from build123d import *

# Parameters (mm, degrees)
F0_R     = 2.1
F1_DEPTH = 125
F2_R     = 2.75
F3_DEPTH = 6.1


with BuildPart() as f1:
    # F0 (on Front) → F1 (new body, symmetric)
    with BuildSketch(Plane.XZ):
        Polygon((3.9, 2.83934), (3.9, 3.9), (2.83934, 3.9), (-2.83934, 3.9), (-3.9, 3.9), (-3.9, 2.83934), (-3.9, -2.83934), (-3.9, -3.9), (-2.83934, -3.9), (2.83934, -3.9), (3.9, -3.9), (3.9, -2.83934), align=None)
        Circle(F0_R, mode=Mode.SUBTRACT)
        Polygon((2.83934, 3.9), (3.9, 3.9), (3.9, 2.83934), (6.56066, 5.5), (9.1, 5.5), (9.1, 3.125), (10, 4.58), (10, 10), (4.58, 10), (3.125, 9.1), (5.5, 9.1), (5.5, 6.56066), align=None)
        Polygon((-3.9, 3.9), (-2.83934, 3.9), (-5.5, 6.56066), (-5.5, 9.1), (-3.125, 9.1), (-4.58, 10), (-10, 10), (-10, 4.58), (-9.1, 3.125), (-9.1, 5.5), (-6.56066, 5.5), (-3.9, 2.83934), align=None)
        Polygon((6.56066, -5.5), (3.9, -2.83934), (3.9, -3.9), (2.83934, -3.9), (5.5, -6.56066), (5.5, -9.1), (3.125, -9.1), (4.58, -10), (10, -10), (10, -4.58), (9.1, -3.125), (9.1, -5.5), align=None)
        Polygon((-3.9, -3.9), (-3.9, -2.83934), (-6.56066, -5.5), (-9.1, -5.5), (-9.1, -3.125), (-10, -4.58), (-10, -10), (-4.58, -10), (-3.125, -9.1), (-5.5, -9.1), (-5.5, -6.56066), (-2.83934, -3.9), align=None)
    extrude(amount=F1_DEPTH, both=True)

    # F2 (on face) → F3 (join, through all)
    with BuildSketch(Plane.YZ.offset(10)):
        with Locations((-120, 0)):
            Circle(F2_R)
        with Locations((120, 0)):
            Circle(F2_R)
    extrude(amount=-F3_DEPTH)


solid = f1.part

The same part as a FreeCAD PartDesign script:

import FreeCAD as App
import Part
import Sketcher

V = App.Vector

doc = App.newDocument("Part")
body = doc.addObject("PartDesign::Body", "Body")

sketch1 = body.newObject("Sketcher::SketchObject", "Sketch")
sketch1.AttachmentSupport = (doc.getObject("XZ_Plane"), [""])
sketch1.MapMode = "FlatFace"
sketch1.addGeometry(Part.LineSegment(V(2.8, 3.9, 0), V(-2.8, 3.9, 0)), False)
sketch1.addGeometry(Part.LineSegment(V(-2.8, 3.9, 0), V(-5.5, 6.6, 0)), False)
sketch1.addGeometry(Part.LineSegment(V(-5.5, 6.6, 0), V(-5.5, 9.1, 0)), False)
sketch1.addGeometry(Part.LineSegment(V(-5.5, 9.1, 0), V(-3.1, 9.1, 0)), False)
sketch1.addGeometry(Part.LineSegment(V(-3.1, 9.1, 0), V(-4.6, 10, 0)), False)
sketch1.addGeometry(Part.LineSegment(V(-4.6, 10, 0), V(-10, 10, 0)), False)
sketch1.addGeometry(Part.LineSegment(V(-10, 10, 0), V(-10, 4.6, 0)), False)
sketch1.addGeometry(Part.LineSegment(V(-10, 4.6, 0), V(-9.1, 3.1, 0)), False)
sketch1.addGeometry(Part.LineSegment(V(-9.1, 3.1, 0), V(-9.1, 5.5, 0)), False)
sketch1.addGeometry(Part.LineSegment(V(-9.1, 5.5, 0), V(-6.6, 5.5, 0)), False)
sketch1.addGeometry(Part.LineSegment(V(-6.6, 5.5, 0), V(-3.9, 2.8, 0)), False)
sketch1.addGeometry(Part.LineSegment(V(-3.9, 2.8, 0), V(-3.9, -2.8, 0)), False)
sketch1.addGeometry(Part.LineSegment(V(-3.9, -2.8, 0), V(-6.6, -5.5, 0)), False)
sketch1.addGeometry(Part.LineSegment(V(-6.6, -5.5, 0), V(-9.1, -5.5, 0)), False)
sketch1.addGeometry(Part.LineSegment(V(-9.1, -5.5, 0), V(-9.1, -3.1, 0)), False)
sketch1.addGeometry(Part.LineSegment(V(-9.1, -3.1, 0), V(-10, -4.6, 0)), False)
sketch1.addGeometry(Part.LineSegment(V(-10, -4.6, 0), V(-10, -10, 0)), False)
sketch1.addGeometry(Part.LineSegment(V(-10, -10, 0), V(-4.6, -10, 0)), False)
sketch1.addGeometry(Part.LineSegment(V(-4.6, -10, 0), V(-3.1, -9.1, 0)), False)
sketch1.addGeometry(Part.LineSegment(V(-3.1, -9.1, 0), V(-5.5, -9.1, 0)), False)
sketch1.addGeometry(Part.LineSegment(V(-5.5, -9.1, 0), V(-5.5, -6.6, 0)), False)
sketch1.addGeometry(Part.LineSegment(V(-5.5, -6.6, 0), V(-2.8, -3.9, 0)), False)
sketch1.addGeometry(Part.LineSegment(V(-2.8, -3.9, 0), V(2.8, -3.9, 0)), False)
sketch1.addGeometry(Part.LineSegment(V(2.8, -3.9, 0), V(5.5, -6.6, 0)), False)
sketch1.addGeometry(Part.LineSegment(V(5.5, -6.6, 0), V(5.5, -9.1, 0)), False)
sketch1.addGeometry(Part.LineSegment(V(5.5, -9.1, 0), V(3.1, -9.1, 0)), False)
sketch1.addGeometry(Part.LineSegment(V(3.1, -9.1, 0), V(4.6, -10, 0)), False)
sketch1.addGeometry(Part.LineSegment(V(4.6, -10, 0), V(10, -10, 0)), False)
sketch1.addGeometry(Part.LineSegment(V(10, -10, 0), V(10, -4.6, 0)), False)
sketch1.addGeometry(Part.LineSegment(V(10, -4.6, 0), V(9.1, -3.1, 0)), False)
sketch1.addGeometry(Part.LineSegment(V(9.1, -3.1, 0), V(9.1, -5.5, 0)), False)
sketch1.addGeometry(Part.LineSegment(V(9.1, -5.5, 0), V(6.6, -5.5, 0)), False)
sketch1.addGeometry(Part.LineSegment(V(6.6, -5.5, 0), V(3.9, -2.8, 0)), False)
sketch1.addGeometry(Part.LineSegment(V(3.9, -2.8, 0), V(3.9, 2.8, 0)), False)
sketch1.addGeometry(Part.LineSegment(V(3.9, 2.8, 0), V(6.6, 5.5, 0)), False)
sketch1.addGeometry(Part.LineSegment(V(6.6, 5.5, 0), V(9.1, 5.5, 0)), False)
sketch1.addGeometry(Part.LineSegment(V(9.1, 5.5, 0), V(9.1, 3.1, 0)), False)
sketch1.addGeometry(Part.LineSegment(V(9.1, 3.1, 0), V(10, 4.6, 0)), False)
sketch1.addGeometry(Part.LineSegment(V(10, 4.6, 0), V(10, 10, 0)), False)
sketch1.addGeometry(Part.LineSegment(V(10, 10, 0), V(4.6, 10, 0)), False)
sketch1.addGeometry(Part.LineSegment(V(4.6, 10, 0), V(3.1, 9.1, 0)), False)
sketch1.addGeometry(Part.LineSegment(V(3.1, 9.1, 0), V(5.5, 9.1, 0)), False)
sketch1.addGeometry(Part.LineSegment(V(5.5, 9.1, 0), V(5.5, 6.6, 0)), False)
sketch1.addGeometry(Part.LineSegment(V(5.5, 6.6, 0), V(2.8, 3.9, 0)), False)
sketch1.addGeometry(Part.Circle(V(0, 0, 0), V(0, 0, 1), 2.1), False)
sketch1.addConstraint(Sketcher.Constraint("Coincident", 0, 2, 1, 1))
sketch1.addConstraint(Sketcher.Constraint("Coincident", 1, 2, 2, 1))
sketch1.addConstraint(Sketcher.Constraint("Coincident", 2, 2, 3, 1))
sketch1.addConstraint(Sketcher.Constraint("Coincident", 3, 2, 4, 1))
sketch1.addConstraint(Sketcher.Constraint("Coincident", 4, 2, 5, 1))
sketch1.addConstraint(Sketcher.Constraint("Coincident", 5, 2, 6, 1))
sketch1.addConstraint(Sketcher.Constraint("Coincident", 6, 2, 7, 1))
sketch1.addConstraint(Sketcher.Constraint("Coincident", 7, 2, 8, 1))
sketch1.addConstraint(Sketcher.Constraint("Coincident", 8, 2, 9, 1))
sketch1.addConstraint(Sketcher.Constraint("Coincident", 9, 2, 10, 1))
sketch1.addConstraint(Sketcher.Constraint("Coincident", 10, 2, 11, 1))
sketch1.addConstraint(Sketcher.Constraint("Coincident", 11, 2, 12, 1))
sketch1.addConstraint(Sketcher.Constraint("Coincident", 12, 2, 13, 1))
sketch1.addConstraint(Sketcher.Constraint("Coincident", 13, 2, 14, 1))
sketch1.addConstraint(Sketcher.Constraint("Coincident", 14, 2, 15, 1))
sketch1.addConstraint(Sketcher.Constraint("Coincident", 15, 2, 16, 1))
sketch1.addConstraint(Sketcher.Constraint("Coincident", 16, 2, 17, 1))
sketch1.addConstraint(Sketcher.Constraint("Coincident", 17, 2, 18, 1))
sketch1.addConstraint(Sketcher.Constraint("Coincident", 18, 2, 19, 1))
sketch1.addConstraint(Sketcher.Constraint("Coincident", 19, 2, 20, 1))
sketch1.addConstraint(Sketcher.Constraint("Coincident", 20, 2, 21, 1))
sketch1.addConstraint(Sketcher.Constraint("Coincident", 21, 2, 22, 1))
sketch1.addConstraint(Sketcher.Constraint("Coincident", 22, 2, 23, 1))
sketch1.addConstraint(Sketcher.Constraint("Coincident", 23, 2, 24, 1))
sketch1.addConstraint(Sketcher.Constraint("Coincident", 24, 2, 25, 1))
sketch1.addConstraint(Sketcher.Constraint("Coincident", 25, 2, 26, 1))
sketch1.addConstraint(Sketcher.Constraint("Coincident", 26, 2, 27, 1))
sketch1.addConstraint(Sketcher.Constraint("Coincident", 27, 2, 28, 1))
sketch1.addConstraint(Sketcher.Constraint("Coincident", 28, 2, 29, 1))
sketch1.addConstraint(Sketcher.Constraint("Coincident", 29, 2, 30, 1))
sketch1.addConstraint(Sketcher.Constraint("Coincident", 30, 2, 31, 1))
sketch1.addConstraint(Sketcher.Constraint("Coincident", 31, 2, 32, 1))
sketch1.addConstraint(Sketcher.Constraint("Coincident", 32, 2, 33, 1))
sketch1.addConstraint(Sketcher.Constraint("Coincident", 33, 2, 34, 1))
sketch1.addConstraint(Sketcher.Constraint("Coincident", 34, 2, 35, 1))
sketch1.addConstraint(Sketcher.Constraint("Coincident", 35, 2, 36, 1))
sketch1.addConstraint(Sketcher.Constraint("Coincident", 36, 2, 37, 1))
sketch1.addConstraint(Sketcher.Constraint("Coincident", 37, 2, 38, 1))
sketch1.addConstraint(Sketcher.Constraint("Coincident", 38, 2, 39, 1))
sketch1.addConstraint(Sketcher.Constraint("Coincident", 39, 2, 40, 1))
sketch1.addConstraint(Sketcher.Constraint("Coincident", 40, 2, 41, 1))
sketch1.addConstraint(Sketcher.Constraint("Coincident", 41, 2, 42, 1))
sketch1.addConstraint(Sketcher.Constraint("Coincident", 42, 2, 43, 1))
sketch1.addConstraint(Sketcher.Constraint("Coincident", 43, 2, 0, 1))
sketch1.addConstraint(Sketcher.Constraint("Horizontal", 0))
sketch1.addConstraint(Sketcher.Constraint("Vertical", 2))
sketch1.addConstraint(Sketcher.Constraint("Horizontal", 3))
sketch1.addConstraint(Sketcher.Constraint("Horizontal", 5))
sketch1.addConstraint(Sketcher.Constraint("Vertical", 6))
sketch1.addConstraint(Sketcher.Constraint("Vertical", 8))
sketch1.addConstraint(Sketcher.Constraint("Horizontal", 9))
sketch1.addConstraint(Sketcher.Constraint("Vertical", 11))
sketch1.addConstraint(Sketcher.Constraint("Horizontal", 13))
sketch1.addConstraint(Sketcher.Constraint("Vertical", 14))
sketch1.addConstraint(Sketcher.Constraint("Vertical", 16))
sketch1.addConstraint(Sketcher.Constraint("Horizontal", 17))
sketch1.addConstraint(Sketcher.Constraint("Horizontal", 19))
sketch1.addConstraint(Sketcher.Constraint("Vertical", 20))
sketch1.addConstraint(Sketcher.Constraint("Horizontal", 22))
sketch1.addConstraint(Sketcher.Constraint("Vertical", 24))
sketch1.addConstraint(Sketcher.Constraint("Horizontal", 25))
sketch1.addConstraint(Sketcher.Constraint("Horizontal", 27))
sketch1.addConstraint(Sketcher.Constraint("Vertical", 28))
sketch1.addConstraint(Sketcher.Constraint("Vertical", 30))
sketch1.addConstraint(Sketcher.Constraint("Horizontal", 31))
sketch1.addConstraint(Sketcher.Constraint("Vertical", 33))
sketch1.addConstraint(Sketcher.Constraint("Horizontal", 35))
sketch1.addConstraint(Sketcher.Constraint("Vertical", 36))
sketch1.addConstraint(Sketcher.Constraint("Vertical", 38))
sketch1.addConstraint(Sketcher.Constraint("Horizontal", 39))
sketch1.addConstraint(Sketcher.Constraint("Horizontal", 41))
sketch1.addConstraint(Sketcher.Constraint("Vertical", 42))
sketch1.addConstraint(Sketcher.Constraint("Coincident", 44, 3, -1, 1))
sketch1.addConstraint(Sketcher.Constraint("Symmetric", 0, 2, 22, 2, -1, 1))
sketch1.addConstraint(Sketcher.Constraint("Symmetric", 1, 2, 23, 2, -1, 1))
sketch1.addConstraint(Sketcher.Constraint("Symmetric", 3, 2, 25, 2, -1, 1))
sketch1.addConstraint(Sketcher.Constraint("Symmetric", 4, 2, 26, 2, -1, 1))
sketch1.addConstraint(Sketcher.Constraint("Symmetric", 6, 2, 28, 2, -1, 1))
sketch1.addConstraint(Sketcher.Constraint("Symmetric", 7, 2, 29, 2, -1, 1))
sketch1.addConstraint(Sketcher.Constraint("Symmetric", 9, 2, 31, 2, -1, 1))
sketch1.addConstraint(Sketcher.Constraint("Symmetric", 10, 2, 32, 2, -1, 1))
sketch1.addConstraint(Sketcher.Constraint("Symmetric", 12, 2, 34, 2, -1, 1))
sketch1.addConstraint(Sketcher.Constraint("Symmetric", 14, 2, 36, 2, -1, 1))
sketch1.addConstraint(Sketcher.Constraint("Symmetric", 15, 2, 37, 2, -1, 1))
sketch1.addConstraint(Sketcher.Constraint("Symmetric", 17, 2, 39, 2, -1, 1))
sketch1.addConstraint(Sketcher.Constraint("Symmetric", 18, 2, 40, 2, -1, 1))
sketch1.addConstraint(Sketcher.Constraint("Symmetric", 20, 2, 42, 2, -1, 1))
sketch1.addConstraint(Sketcher.Constraint("Symmetric", 20, 2, 23, 2, -2))
sketch1.addConstraint(Sketcher.Constraint("Symmetric", 18, 2, 25, 2, -2))
sketch1.addConstraint(Sketcher.Constraint("Symmetric", 17, 2, 26, 2, -2))
sketch1.addConstraint(Sketcher.Constraint("Symmetric", 15, 2, 28, 2, -2))
sketch1.addConstraint(Sketcher.Constraint("Symmetric", 14, 2, 29, 2, -2))
sketch1.addConstraint(Sketcher.Constraint("Symmetric", 12, 2, 31, 2, -2))
sketch1.addConstraint(Sketcher.Constraint("Parallel", 1, 10))
sketch1.addConstraint(Sketcher.Constraint("Perpendicular", 10, 12))
sketch1.addConstraint(Sketcher.Constraint("Perpendicular", 4, 15))
sketch1.addConstraint(Sketcher.Constraint("Parallel", 12, 21))
sketch1.addConstraint(Sketcher.Constraint("Perpendicular", 32, 34))
sketch1.addConstraint(Sketcher.Constraint("Parallel", 34, 43))
sketch1.addConstraint(Sketcher.Constraint("Horizontal", 11, 2, 32, 2))
sketch1.addConstraint(Sketcher.Constraint("Equal", 35, 2))
sketch1.addConstraint(Sketcher.Constraint("Equal", 39, 6))
sketch1.addConstraint(Sketcher.Constraint("Equal", 41, 8))
sketch1.addConstraint(Sketcher.Constraint("Equal", 22, 11))
sketch1.addConstraint(Sketcher.Constraint("Equal", 4, 7))
sketch1.addConstraint(Sketcher.Constraint("Equal", 1, 10))
sketch1.addConstraint(Sketcher.Constraint("Diameter", 44, 4.2))
sketch1.addConstraint(Sketcher.Constraint("DistanceY", -1, 1, 4, 2, 10.0))
sketch1.addConstraint(Sketcher.Constraint("DistanceX", 5, 2, 5, 1, 5.42))
sketch1.addConstraint(Sketcher.Constraint("DistanceY", -1, 1, 0, 2, 3.9))
sketch1.addConstraint(Sketcher.Constraint("DistanceX", 1, 2, -1, 1, 5.5))
sketch1.addConstraint(Sketcher.Constraint("DistanceY", -1, 1, 2, 2, 9.1))
sketch1.addConstraint(Sketcher.Constraint("DistanceX", 3, 1, 3, 2, 2.375))
sketch1.addConstraint(Sketcher.Constraint("DistanceX", 0, 2, 0, 1, 5.67868))
pad1 = body.newObject("PartDesign::Pad", "Pad")
pad1.Profile = sketch1
pad1.Length = 250
pad1.Midplane = True

sketch2 = body.newObject("Sketcher::SketchObject", "Sketch001")
sketch2.AttachmentSupport = (doc.getObject("YZ_Plane"), [""])
sketch2.MapMode = "FlatFace"
sketch2.AttachmentOffset = App.Placement(V(0, 0, 10), App.Rotation())
sketch2.addGeometry(Part.Circle(V(-120, 0, 0), V(0, 0, 1), 2.8), False)
sketch2.addGeometry(Part.Circle(V(120, 0, 0), V(0, 0, 1), 2.8), False)
sketch2.addConstraint(Sketcher.Constraint("Equal", 0, 1))
sketch2.addConstraint(Sketcher.Constraint("Symmetric", 0, 3, 1, 3, -1, 1))
sketch2.addConstraint(Sketcher.Constraint("PointOnObject", 0, 3, -1))
sketch2.addConstraint(Sketcher.Constraint("Diameter", 0, 5.5))
sketch2.addConstraint(Sketcher.Constraint("DistanceX", 0, 3, -1, 1, 120.0))
pad2 = body.newObject("PartDesign::Pad", "Pad001")
pad2.Profile = sketch2
pad2.Length = 6.1
pad2.Reversed = True

doc.recompute()
